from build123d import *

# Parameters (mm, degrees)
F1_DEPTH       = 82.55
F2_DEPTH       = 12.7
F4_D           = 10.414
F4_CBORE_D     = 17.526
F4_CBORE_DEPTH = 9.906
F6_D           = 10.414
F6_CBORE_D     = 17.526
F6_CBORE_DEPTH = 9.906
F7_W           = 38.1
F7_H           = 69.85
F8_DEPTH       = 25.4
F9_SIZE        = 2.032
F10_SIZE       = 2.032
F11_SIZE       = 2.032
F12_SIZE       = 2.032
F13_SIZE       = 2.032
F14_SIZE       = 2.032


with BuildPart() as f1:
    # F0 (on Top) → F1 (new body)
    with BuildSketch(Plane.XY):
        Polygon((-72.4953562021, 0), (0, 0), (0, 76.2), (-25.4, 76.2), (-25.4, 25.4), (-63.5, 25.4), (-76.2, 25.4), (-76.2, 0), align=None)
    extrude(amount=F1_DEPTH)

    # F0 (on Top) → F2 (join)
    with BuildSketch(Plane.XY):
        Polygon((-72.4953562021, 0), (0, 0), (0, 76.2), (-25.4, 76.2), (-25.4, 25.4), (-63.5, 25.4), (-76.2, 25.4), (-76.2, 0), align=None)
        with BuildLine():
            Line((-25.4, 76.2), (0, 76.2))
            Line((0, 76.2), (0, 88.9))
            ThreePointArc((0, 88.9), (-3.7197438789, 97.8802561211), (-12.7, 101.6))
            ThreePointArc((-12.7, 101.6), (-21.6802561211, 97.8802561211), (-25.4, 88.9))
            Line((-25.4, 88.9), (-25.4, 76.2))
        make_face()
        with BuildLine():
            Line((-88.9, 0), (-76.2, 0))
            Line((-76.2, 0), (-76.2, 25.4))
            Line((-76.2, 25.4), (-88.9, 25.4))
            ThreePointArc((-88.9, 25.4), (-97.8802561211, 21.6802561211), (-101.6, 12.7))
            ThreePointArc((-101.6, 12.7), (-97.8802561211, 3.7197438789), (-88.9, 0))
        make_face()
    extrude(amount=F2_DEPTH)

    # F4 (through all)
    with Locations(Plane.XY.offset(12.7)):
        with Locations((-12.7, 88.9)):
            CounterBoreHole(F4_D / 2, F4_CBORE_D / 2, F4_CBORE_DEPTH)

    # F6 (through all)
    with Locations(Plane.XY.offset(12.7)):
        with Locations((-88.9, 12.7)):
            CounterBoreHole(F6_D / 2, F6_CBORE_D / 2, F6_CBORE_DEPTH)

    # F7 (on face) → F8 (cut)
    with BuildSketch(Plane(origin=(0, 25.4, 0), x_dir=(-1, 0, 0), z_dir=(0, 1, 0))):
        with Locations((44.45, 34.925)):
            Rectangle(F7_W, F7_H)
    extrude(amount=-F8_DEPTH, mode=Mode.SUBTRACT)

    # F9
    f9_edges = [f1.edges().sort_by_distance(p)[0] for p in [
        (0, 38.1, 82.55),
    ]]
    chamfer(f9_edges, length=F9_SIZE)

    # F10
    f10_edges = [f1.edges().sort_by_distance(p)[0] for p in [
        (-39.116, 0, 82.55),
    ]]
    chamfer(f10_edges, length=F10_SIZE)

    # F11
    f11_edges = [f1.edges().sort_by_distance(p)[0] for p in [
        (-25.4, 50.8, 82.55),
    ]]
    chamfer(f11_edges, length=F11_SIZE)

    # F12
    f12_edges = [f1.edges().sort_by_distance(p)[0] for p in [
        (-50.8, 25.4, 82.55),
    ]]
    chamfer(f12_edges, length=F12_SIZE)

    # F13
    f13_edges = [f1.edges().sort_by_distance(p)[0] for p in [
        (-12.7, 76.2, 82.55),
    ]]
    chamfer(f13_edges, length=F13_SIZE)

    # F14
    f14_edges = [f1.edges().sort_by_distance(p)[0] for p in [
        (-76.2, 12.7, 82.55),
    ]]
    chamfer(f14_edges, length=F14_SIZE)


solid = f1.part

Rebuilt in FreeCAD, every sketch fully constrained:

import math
import FreeCAD as App
import Part
import Sketcher
from FreeCAD import Vector
Q = App.Units.Quantity


def edges_at(feature, points):
    """Names of the edges that pass closest to the given points."""
    edges = feature.Shape.Edges
    near = lambda p: min(range(len(edges)), key=lambda i: edges[i].distToShape(Part.Vertex(*p))[0])
    return sorted({f"Edge{near(p) + 1}" for p in points})


def add_polygon(sketch, points):
    """Adds a closed chain of lines whose ends are joined by coincident constraints."""
    first, n = sketch.GeometryCount, len(points)
    for a, b in zip(points, points[1:] + points[:1]):
        sketch.addGeometry(Part.LineSegment(App.Vector(*a, 0), App.Vector(*b, 0)), False)
    for i in range(n):
        sketch.addConstraint(Sketcher.Constraint("Coincident", first + i, 2, first + (i + 1) % n, 1))

doc = App.newDocument("Part")
params = doc.addObject("Spreadsheet::Sheet", "Params")
for row, (alias, value) in enumerate([
    ("sketch1_width", "1 in"),
    ("sketch1_width2", "2 in"),
    ("pad1_length", "3.25 in"),
    ("sketch2_radius", "0.5 in"),
    ("sketch2_width", "2.5 in"),
    ("pad2_length", "0.5 in"),
    ("sketch3_diameter", "0.41 in"),
    ("hole_diameter", "0.41 in"),
    ("hole_cbore_diameter", "0.69 in"),
    ("hole_cbore_depth", "0.39 in"),
    ("sketch4_diameter", "0.41 in"),
    ("hole2_diameter", "0.41 in"),
    ("hole2_cbore_diameter", "0.69 in"),
    ("hole2_cbore_depth", "0.39 in"),
    ("sketch5_width", "1.5 in"),
    ("sketch5_height", "2.75 in"),
    ("pocket1_length", "1 in"),
    ("chamfer_size", "0.08 in"),
    ("chamfer2_size", "0.08 in"),
    ("chamfer3_size", "0.08 in"),
    ("chamfer4_size", "0.08 in"),
    ("chamfer5_size", "0.08 in"),
    ("chamfer6_size", "0.08 in"),
], start=1):
    params.set(f"A{row}", alias)
    params.set(f"B{row}", "=" + value)
    params.setAlias(f"B{row}", alias)

body = doc.addObject("PartDesign::Body", "Body")

# Sketch on XY plane
sketch1 = body.newObject("Sketcher::SketchObject", "Sketch")
sketch1.AttachmentSupport = (doc.getObject("XY_Plane"), [""])
sketch1.MapMode = "FlatFace"
add_polygon(sketch1, [(0, 0), (0, 76), (-25, 76), (-25, 25), (-76, 25), (-76, 0)])  # lines 0-5
sketch1.addConstraint([
    Sketcher.Constraint("Vertical", 0),
    Sketcher.Constraint("Horizontal", 1),
    Sketcher.Constraint("Vertical", 2),
    Sketcher.Constraint("Horizontal", 3),
    Sketcher.Constraint("Vertical", 4),
    Sketcher.Constraint("Horizontal", 5),
    Sketcher.Constraint("Coincident", 5, 2, -1, 1),
    Sketcher.Constraint("Equal", 5, 0),
    Sketcher.Constraint("Equal", 3, 2),
    Sketcher.Constraint("DistanceX", 1, 2, 1, 1, Q("1 in")),
    Sketcher.Constraint("DistanceX", 3, 2, 3, 1, Q("2 in")),
])
sketch1.setExpression("Constraints[15]", "Params.sketch1_width")
sketch1.setExpression("Constraints[16]", "Params.sketch1_width2")
pad1 = body.newObject("PartDesign::Pad", "Pad")
pad1.Profile = sketch1
pad1.setExpression("Length", "Params.pad1_length")

# Sketch on XY plane
sketch2 = body.newObject("Sketcher::SketchObject", "Sketch001")
sketch2.AttachmentSupport = (doc.getObject("XY_Plane"), [""])
sketch2.MapMode = "FlatFace"
sketch2.addGeometry([
    Part.LineSegment(Vector(0, 0, 0), Vector(0, 89, 0)),  # 0
    Part.ArcOfCircle(Part.Circle(Vector(-13, 89, 0), Vector(0, 0, 1), 13), math.radians(0), math.radians(90)),  # 1
    Part.ArcOfCircle(Part.Circle(Vector(-13, 89, 0), Vector(0, 0, 1), 13), math.radians(90), math.radians(180)),  # 2
    Part.LineSegment(Vector(-25, 89, 0), Vector(-25, 25, 0)),  # 3
    Part.LineSegment(Vector(-25, 25, 0), Vector(-89, 25, 0)),  # 4
    Part.ArcOfCircle(Part.Circle(Vector(-89, 13, 0), Vector(0, 0, 1), 13), math.radians(90), math.radians(180)),  # 5
    Part.ArcOfCircle(Part.Circle(Vector(-89, 13, 0), Vector(0, 0, 1), 13), math.radians(180), math.radians(270)),  # 6
    Part.LineSegment(Vector(-89, 0, 0), Vector(0, 0, 0)),  # 7
], False)
sketch2.addConstraint([
    Sketcher.Constraint("Tangent", 0, 2, 1, 1),
    Sketcher.Constraint("Tangent", 1, 2, 2, 1),
    Sketcher.Constraint("Tangent", 2, 2, 3, 1),
    Sketcher.Constraint("Coincident", 3, 2, 4, 1),
    Sketcher.Constraint("Tangent", 4, 2, 5, 1),
    Sketcher.Constraint("Tangent", 5, 2, 6, 1),
    Sketcher.Constraint("Tangent", 6, 2, 7, 1),
    Sketcher.Constraint("Coincident", 7, 2, 0, 1),
    Sketcher.Constraint("Vertical", 0),
    Sketcher.Constraint("Vertical", 3),
    Sketcher.Constraint("Horizontal", 4),
    Sketcher.Constraint("Horizontal", 7),
    Sketcher.Constraint("Coincident", 7, 2, -1, 1),
    Sketcher.Constraint("Equal", 1, 2),
    Sketcher.Constraint("Equal", 2, 5),
    Sketcher.Constraint("Equal", 5, 6),
    Sketcher.Constraint("Horizontal", 6, 3, 5, 2),
    Sketcher.Constraint("Vertical", 2, 3, 1, 2),
    Sketcher.Constraint("Equal", 7, 0),
    Sketcher.Constraint("Radius", 1, Q("0.5 in")),
    Sketcher.Constraint("DistanceX", 4, 2, 4, 1, Q("2.5 in")),
])
sketch2.setExpression("Constraints[19]", "Params.sketch2_radius")
sketch2.setExpression("Constraints[20]", "Params.sketch2_width")
pad2 = body.newObject("PartDesign::Pad", "Pad001")
pad2.Profile = sketch2
pad2.setExpression("Length", "Params.pad2_length")

# Sketch on XY plane
sketch3 = body.newObject("Sketcher::SketchObject", "Sketch002")
sketch3.AttachmentSupport = (doc.getObject("XY_Plane"), [""])
sketch3.MapMode = "FlatFace"
sketch3.AttachmentOffset = App.Placement(Vector(0, 0, 0.5 * 25.4), App.Rotation())
sketch3.addGeometry(Part.Circle(Vector(-13, 89, 0), Vector(0, 0, 1), 5), False)
sketch3.addConstraint([
    Sketcher.Constraint("Diameter", 0, Q("0.41 in")),
    Sketcher.Constraint("DistanceX", 0, 3, -1, 1, Q("0.5 in")),
    Sketcher.Constraint("DistanceY", -1, 1, 0, 3, Q("3.5 in")),
])
sketch3.setExpression("Constraints[0]", "Params.sketch3_diameter")
doc.recompute()
hole = body.newObject("PartDesign::Hole", "Hole")
hole.Profile = sketch3
hole.ThreadType = "None"
hole.setExpression("Diameter", "Params.hole_diameter")
hole.DepthType = "ThroughAll"
hole.HoleCutType = "Counterbore"
hole.setExpression("HoleCutDiameter", "Params.hole_cbore_diameter")
hole.setExpression("HoleCutDepth", "Params.hole_cbore_depth")

# Sketch on XY plane
sketch4 = body.newObject("Sketcher::SketchObject", "Sketch003")
sketch4.AttachmentSupport = (doc.getObject("XY_Plane"), [""])
sketch4.MapMode = "FlatFace"
sketch4.AttachmentOffset = App.Placement(Vector(0, 0, 0.5 * 25.4), App.Rotation())
sketch4.addGeometry(Part.Circle(Vector(-89, 13, 0), Vector(0, 0, 1), 5), False)
sketch4.addConstraint([
    Sketcher.Constraint("Diameter", 0, Q("0.41 in")),
    Sketcher.Constraint("DistanceX", 0, 3, -1, 1, Q("3.5 in")),
    Sketcher.Constraint("DistanceY", -1, 1, 0, 3, Q("0.5 in")),
])
sketch4.setExpression("Constraints[0]", "Params.sketch4_diameter")
doc.recompute()
hole2 = body.newObject("PartDesign::Hole", "Hole001")
hole2.Profile = sketch4
hole2.ThreadType = "None"
hole2.setExpression("Diameter", "Params.hole2_diameter")
hole2.DepthType = "ThroughAll"
hole2.HoleCutType = "Counterbore"
hole2.setExpression("HoleCutDiameter", "Params.hole2_cbore_diameter")
hole2.setExpression("HoleCutDepth", "Params.hole2_cbore_depth")

# Sketch on XZ plane
sketch5 = body.newObject("Sketcher::SketchObject", "Sketch004")
sketch5.AttachmentSupport = (doc.getObject("XZ_Plane"), [""])
sketch5.MapMode = "FlatFace"
sketch5.AttachmentOffset = App.Placement(Vector(0, 0, -1 * 25.4), App.Rotation())
add_polygon(sketch5, [(-25, 70), (-25, 0), (-64, 0), (-64, 70)])  # lines 0-3
sketch5.addConstraint([
    Sketcher.Constraint("Vertical", 0),
    Sketcher.Constraint("Horizontal", 1),
    Sketcher.Constraint("Vertical", 2),
    Sketcher.Constraint("Horizontal", 3),
    Sketcher.Constraint("PointOnObject", 0, 2, -1),
    Sketcher.Constraint("DistanceX", 1, 2, 1, 1, Q("1.5 in")),
    Sketcher.Constraint("DistanceX", 0, 2, -1, 1, Q("1 in")),
    Sketcher.Constraint("DistanceY", 0, 2, 0, 1, Q("2.75 in")),
])
sketch5.setExpression("Constraints[9]", "Params.sketch5_width")
sketch5.setExpression("Constraints[11]", "Params.sketch5_height")
pocket1 = body.newObject("PartDesign::Pocket", "Pocket")
pocket1.Profile = sketch5
pocket1.setExpression("Length", "Params.pocket1_length")
pocket1.Reversed = True
doc.recompute()

chamfer = body.newObject("PartDesign::Chamfer", "Chamfer")
chamfer.Base = (pocket1, edges_at(pocket1, [(0, 38.1, 82.55)]))
chamfer.setExpression("Size", "Params.chamfer_size")
doc.recompute()

chamfer2 = body.newObject("PartDesign::Chamfer", "Chamfer001")
chamfer2.Base = (chamfer, edges_at(chamfer, [(-39.116, 0, 82.55)]))
chamfer2.setExpression("Size", "Params.chamfer2_size")
doc.recompute()

chamfer3 = body.newObject("PartDesign::Chamfer", "Chamfer002")
chamfer3.Base = (chamfer2, edges_at(chamfer2, [(-25.4, 50.8, 82.55)]))
chamfer3.setExpression("Size", "Params.chamfer3_size")
doc.recompute()

chamfer4 = body.newObject("PartDesign::Chamfer", "Chamfer003")
chamfer4.Base = (chamfer3, edges_at(chamfer3, [(-49.784, 25.4, 82.55)]))
chamfer4.setExpression("Size", "Params.chamfer4_size")
doc.recompute()

chamfer5 = body.newObject("PartDesign::Chamfer", "Chamfer004")
chamfer5.Base = (chamfer4, edges_at(chamfer4, [(-12.7, 76.2, 82.55)]))
chamfer5.setExpression("Size", "Params.chamfer5_size")
doc.recompute()

chamfer6 = body.newObject("PartDesign::Chamfer", "Chamfer005")
chamfer6.Base = (chamfer5, edges_at(chamfer5, [(-76.2, 12.7, 82.55)]))
chamfer6.setExpression("Size", "Params.chamfer6_size")

doc.recompute()
